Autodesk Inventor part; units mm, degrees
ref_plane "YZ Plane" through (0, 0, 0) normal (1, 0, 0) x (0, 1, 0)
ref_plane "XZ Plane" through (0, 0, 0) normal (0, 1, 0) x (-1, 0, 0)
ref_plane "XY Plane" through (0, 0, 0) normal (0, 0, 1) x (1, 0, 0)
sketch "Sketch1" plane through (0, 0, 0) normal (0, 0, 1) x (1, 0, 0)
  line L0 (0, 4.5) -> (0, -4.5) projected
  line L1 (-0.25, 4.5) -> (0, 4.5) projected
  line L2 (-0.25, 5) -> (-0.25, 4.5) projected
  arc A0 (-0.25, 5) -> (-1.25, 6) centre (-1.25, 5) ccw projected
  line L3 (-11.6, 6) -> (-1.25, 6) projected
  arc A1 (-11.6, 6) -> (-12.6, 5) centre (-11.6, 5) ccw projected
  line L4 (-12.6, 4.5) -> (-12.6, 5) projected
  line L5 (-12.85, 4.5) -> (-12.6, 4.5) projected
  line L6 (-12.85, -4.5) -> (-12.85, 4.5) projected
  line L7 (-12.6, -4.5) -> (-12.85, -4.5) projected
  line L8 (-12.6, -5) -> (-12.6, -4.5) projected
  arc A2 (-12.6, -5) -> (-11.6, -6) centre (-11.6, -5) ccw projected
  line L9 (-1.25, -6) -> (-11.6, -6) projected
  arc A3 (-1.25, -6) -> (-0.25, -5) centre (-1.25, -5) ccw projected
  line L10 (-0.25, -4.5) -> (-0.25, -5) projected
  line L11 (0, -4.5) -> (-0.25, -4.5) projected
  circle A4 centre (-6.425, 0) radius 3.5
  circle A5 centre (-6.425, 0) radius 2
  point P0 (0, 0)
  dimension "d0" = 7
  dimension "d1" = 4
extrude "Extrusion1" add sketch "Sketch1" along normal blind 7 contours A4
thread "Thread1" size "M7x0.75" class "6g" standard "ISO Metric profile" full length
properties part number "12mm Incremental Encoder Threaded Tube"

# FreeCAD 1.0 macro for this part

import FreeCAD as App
import Part
import Sketcher
from FreeCAD import Vector
Q = App.Units.Quantity

doc = App.newDocument("Part")
params = doc.addObject("Spreadsheet::Sheet", "Params")
for row, (alias, value) in enumerate([
    ("sketch1_diameter", "7 mm"),
    ("sketch1_diameter2", "4 mm"),
    ("pad1_length", "7 mm"),
], start=1):
    params.set(f"A{row}", alias)
    params.set(f"B{row}", "=" + value)
    params.setAlias(f"B{row}", alias)

body = doc.addObject("PartDesign::Body", "Body")

# Sketch on XY plane
sketch1 = doc.addObject("Sketcher::SketchObject", "Sketch")
body.addObject(sketch1)
sketch1.AttachmentSupport = (doc.XY_Plane, [""])
sketch1.MapMode = "FlatFace"
sketch1.addGeometry(Part.Circle(Vector(-6.4, 0, 0), Vector(0, 0, 1), 3.5), False)
sketch1.addGeometry(Part.Circle(Vector(-6.4, 0, 0), Vector(0, 0, 1), 2), False)
sketch1.addConstraint(Sketcher.Constraint("Coincident", 1, 3, 0, 3))
sketch1.addConstraint(Sketcher.Constraint("PointOnObject", 0, 3, -1))
sketch1.addConstraint(Sketcher.Constraint("Diameter", 0, Q("7 mm")))
sketch1.addConstraint(Sketcher.Constraint("Diameter", 1, Q("4 mm")))
sketch1.addConstraint(Sketcher.Constraint("DistanceX", 0, 3, -1, 1, Q("6.425 mm")))
sketch1.setExpression("Constraints[2]", "Params.sketch1_diameter")
sketch1.setExpression("Constraints[3]", "Params.sketch1_diameter2")
pad1 = doc.addObject("PartDesign::Pad", "Pad")
body.addObject(pad1)
pad1.Profile = sketch1
pad1.setExpression("Length", "Params.pad1_length")

doc.recompute()
